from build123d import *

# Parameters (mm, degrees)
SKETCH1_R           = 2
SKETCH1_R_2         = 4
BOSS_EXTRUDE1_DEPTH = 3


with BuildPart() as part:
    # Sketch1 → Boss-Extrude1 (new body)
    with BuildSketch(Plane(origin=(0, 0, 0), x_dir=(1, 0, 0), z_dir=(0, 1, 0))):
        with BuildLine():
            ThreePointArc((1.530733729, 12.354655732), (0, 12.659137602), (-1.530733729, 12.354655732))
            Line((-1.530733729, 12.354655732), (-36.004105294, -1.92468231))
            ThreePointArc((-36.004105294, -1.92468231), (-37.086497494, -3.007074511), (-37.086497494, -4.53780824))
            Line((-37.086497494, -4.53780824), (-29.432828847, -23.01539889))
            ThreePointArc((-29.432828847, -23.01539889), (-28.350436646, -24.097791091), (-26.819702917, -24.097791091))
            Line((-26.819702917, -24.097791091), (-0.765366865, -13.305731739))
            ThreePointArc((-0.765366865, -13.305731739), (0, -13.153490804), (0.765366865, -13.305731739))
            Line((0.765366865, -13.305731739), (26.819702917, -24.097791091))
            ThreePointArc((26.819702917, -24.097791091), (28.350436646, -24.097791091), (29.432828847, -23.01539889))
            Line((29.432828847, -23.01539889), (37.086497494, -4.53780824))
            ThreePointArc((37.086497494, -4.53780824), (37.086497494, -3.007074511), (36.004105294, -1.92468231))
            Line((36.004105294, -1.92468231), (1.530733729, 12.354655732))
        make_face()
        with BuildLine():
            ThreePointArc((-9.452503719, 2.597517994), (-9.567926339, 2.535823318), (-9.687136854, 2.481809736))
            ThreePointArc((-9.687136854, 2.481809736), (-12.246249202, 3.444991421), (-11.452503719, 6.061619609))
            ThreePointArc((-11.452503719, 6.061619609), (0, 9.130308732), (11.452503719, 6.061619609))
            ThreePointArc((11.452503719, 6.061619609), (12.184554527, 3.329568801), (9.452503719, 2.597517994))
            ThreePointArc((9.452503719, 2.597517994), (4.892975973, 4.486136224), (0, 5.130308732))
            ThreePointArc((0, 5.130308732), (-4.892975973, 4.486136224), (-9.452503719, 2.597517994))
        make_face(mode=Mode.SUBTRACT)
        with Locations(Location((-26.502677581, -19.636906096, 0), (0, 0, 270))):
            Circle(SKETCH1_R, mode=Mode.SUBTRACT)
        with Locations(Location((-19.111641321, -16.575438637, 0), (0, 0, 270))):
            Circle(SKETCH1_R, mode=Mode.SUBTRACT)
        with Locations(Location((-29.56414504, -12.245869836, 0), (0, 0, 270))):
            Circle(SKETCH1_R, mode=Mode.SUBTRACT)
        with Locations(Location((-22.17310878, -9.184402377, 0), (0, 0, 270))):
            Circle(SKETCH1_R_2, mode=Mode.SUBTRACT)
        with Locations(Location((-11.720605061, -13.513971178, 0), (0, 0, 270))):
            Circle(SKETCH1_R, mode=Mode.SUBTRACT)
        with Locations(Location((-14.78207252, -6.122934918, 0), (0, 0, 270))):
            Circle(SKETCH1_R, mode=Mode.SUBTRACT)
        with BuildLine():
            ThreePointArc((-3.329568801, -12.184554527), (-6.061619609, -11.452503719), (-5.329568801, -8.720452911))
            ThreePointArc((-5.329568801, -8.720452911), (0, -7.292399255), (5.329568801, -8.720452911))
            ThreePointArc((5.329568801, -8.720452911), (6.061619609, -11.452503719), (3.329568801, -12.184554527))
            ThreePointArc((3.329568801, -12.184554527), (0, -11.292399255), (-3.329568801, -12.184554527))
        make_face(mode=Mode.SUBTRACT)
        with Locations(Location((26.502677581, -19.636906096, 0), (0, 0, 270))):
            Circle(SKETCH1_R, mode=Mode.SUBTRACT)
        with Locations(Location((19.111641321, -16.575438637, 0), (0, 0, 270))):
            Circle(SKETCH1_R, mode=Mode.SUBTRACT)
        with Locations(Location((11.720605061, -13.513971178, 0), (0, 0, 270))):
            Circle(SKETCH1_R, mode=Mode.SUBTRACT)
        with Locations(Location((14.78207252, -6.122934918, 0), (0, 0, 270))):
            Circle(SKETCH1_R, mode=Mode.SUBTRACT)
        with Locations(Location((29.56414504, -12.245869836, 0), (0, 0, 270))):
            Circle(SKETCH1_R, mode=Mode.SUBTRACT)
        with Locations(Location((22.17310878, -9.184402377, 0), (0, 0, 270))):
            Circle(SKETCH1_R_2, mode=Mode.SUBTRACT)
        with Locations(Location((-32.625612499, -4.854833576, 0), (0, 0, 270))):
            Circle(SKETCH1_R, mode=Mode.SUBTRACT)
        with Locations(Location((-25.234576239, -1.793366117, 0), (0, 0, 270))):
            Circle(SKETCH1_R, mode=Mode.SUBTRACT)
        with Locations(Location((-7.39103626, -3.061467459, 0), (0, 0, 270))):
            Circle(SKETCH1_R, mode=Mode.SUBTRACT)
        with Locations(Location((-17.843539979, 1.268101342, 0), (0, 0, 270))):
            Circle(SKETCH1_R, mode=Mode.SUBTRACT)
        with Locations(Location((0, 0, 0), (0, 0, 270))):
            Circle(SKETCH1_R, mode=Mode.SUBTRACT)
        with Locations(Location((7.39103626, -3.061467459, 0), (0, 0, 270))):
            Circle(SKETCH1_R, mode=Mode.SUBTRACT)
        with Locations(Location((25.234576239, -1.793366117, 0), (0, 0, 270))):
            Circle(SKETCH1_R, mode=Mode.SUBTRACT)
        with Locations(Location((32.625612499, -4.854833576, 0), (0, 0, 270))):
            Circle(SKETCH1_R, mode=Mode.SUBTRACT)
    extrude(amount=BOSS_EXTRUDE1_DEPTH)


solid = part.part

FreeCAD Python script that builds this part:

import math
import FreeCAD as App
import Part
import Sketcher

V = App.Vector
Q = App.Units.Quantity

doc = App.newDocument("Part")
body = doc.addObject("PartDesign::Body", "Body")

sketch1 = body.newObject("Sketcher::SketchObject", "Sketch")
sketch1.AttachmentSupport = (doc.getObject("XZ_Plane"), [""])
sketch1.MapMode = "FlatFace"
sketch1.addGeometry([
    Part.ArcOfCircle(Part.Circle(V(0, -8.659138, 0), V(0, 0, 1), 4), math.radians(-112.5), math.radians(-67.5)),
    Part.LineSegment(V(-1.530734, -12.354656, 0), V(-36.004105, 1.924682, 0)),
    Part.ArcOfCircle(Part.Circle(V(-35.238738, 3.772441, 0), V(0, 0, 1), 2), math.radians(157.5), math.radians(247.5)),
    Part.LineSegment(V(-37.086497, 4.537808, 0), V(-29.432829, 23.015399, 0)),
    Part.ArcOfCircle(Part.Circle(V(-27.58507, 22.250032, 0), V(0, 0, 1), 2), math.radians(67.5), math.radians(157.5)),
    Part.LineSegment(V(-26.819703, 24.097791, 0), V(-0.765367, 13.305732, 0)),
    Part.ArcOfCircle(Part.Circle(V(0, 15.153491, 0), V(0, 0, 1), 2), math.radians(-112.5), math.radians(-67.5)),
    Part.LineSegment(V(0.765367, 13.305732, 0), V(26.819703, 24.097791, 0)),
    Part.ArcOfCircle(Part.Circle(V(27.58507, 22.250032, 0), V(0, 0, 1), 2), math.radians(22.5), math.radians(112.5)),
    Part.LineSegment(V(29.432829, 23.015399, 0), V(37.086497, 4.537808, 0)),
    Part.ArcOfCircle(Part.Circle(V(35.238738, 3.772441, 0), V(0, 0, 1), 2), math.radians(-67.5), math.radians(22.5)),
    Part.LineSegment(V(36.004105, 1.924682, 0), V(1.530734, -12.354656, 0)),
    Part.Circle(V(-26.502678, 19.636906, 0), V(0, 0, 1), 2),
    Part.Circle(V(-19.111641, 16.575439, 0), V(0, 0, 1), 2),
    Part.Circle(V(-29.564145, 12.24587, 0), V(0, 0, 1), 2),
    Part.Circle(V(-22.173109, 9.184402, 0), V(0, 0, 1), 4),
    Part.Circle(V(-11.720605, 13.513971, 0), V(0, 0, 1), 2),
    Part.Circle(V(26.502678, 19.636906, 0), V(0, 0, 1), 2),
    Part.Circle(V(19.111641, 16.575439, 0), V(0, 0, 1), 2),
    Part.Circle(V(11.720605, 13.513971, 0), V(0, 0, 1), 2),
    Part.ArcOfCircle(Part.Circle(V(0, 17.951537, 0), V(0, 0, 1), 6.659138), math.radians(-120), math.radians(-60)),
    Part.ArcOfCircle(Part.Circle(V(-4.329569, 10.452504, 0), V(0, 0, 1), 2), math.radians(60), math.radians(240)),
    Part.ArcOfCircle(Part.Circle(V(0, 17.951537, 0), V(0, 0, 1), 10.659138), math.radians(-120), math.radians(-60)),
    Part.ArcOfCircle(Part.Circle(V(4.329569, 10.452504, 0), V(0, 0, 1), 2), math.radians(-60), math.radians(120)),
    Part.Circle(V(29.564145, 12.24587, 0), V(0, 0, 1), 2),
    Part.Circle(V(22.173109, 9.184402, 0), V(0, 0, 1), 4),
    Part.Circle(V(-32.625612, 4.854834, 0), V(0, 0, 1), 2),
    Part.Circle(V(-25.234576, 1.793366, 0), V(0, 0, 1), 2),
    Part.Circle(V(-17.84354, -1.268101, 0), V(0, 0, 1), 2),
    Part.Circle(V(-14.782073, 6.122935, 0), V(0, 0, 1), 2),
    Part.Circle(V(-7.391036, 3.061467, 0), V(0, 0, 1), 2),
    Part.Circle(V(7.391036, 3.061467, 0), V(0, 0, 1), 2),
    Part.Circle(V(14.782073, 6.122935, 0), V(0, 0, 1), 2),
    Part.Circle(V(0, 0, 0), V(0, 0, 1), 2),
    Part.Circle(V(32.625612, 4.854834, 0), V(0, 0, 1), 2),
    Part.Circle(V(25.234576, 1.793366, 0), V(0, 0, 1), 2),
    Part.ArcOfCircle(Part.Circle(V(0, 13.774699, 0), V(0, 0, 1), 18.905007), math.radians(-120), math.radians(-90)),
    Part.ArcOfCircle(Part.Circle(V(-10.452504, -4.329569, 0), V(0, 0, 1), 2), math.radians(60), math.radians(67.5)),
    Part.ArcOfCircle(Part.Circle(V(-10.452504, -4.329569, 0), V(0, 0, 1), 2), math.radians(67.5), math.radians(240)),
    Part.ArcOfCircle(Part.Circle(V(0, 13.774699, 0), V(0, 0, 1), 22.905007), math.radians(-120), math.radians(-60)),
    Part.ArcOfCircle(Part.Circle(V(10.452504, -4.329569, 0), V(0, 0, 1), 2), math.radians(-60), math.radians(120)),
    Part.ArcOfCircle(Part.Circle(V(0, 13.774699, 0), V(0, 0, 1), 18.905007), math.radians(-90), math.radians(-60)),
], False)
sketch1.addConstraint([
    Sketcher.Constraint("Tangent", 0, 1, 1, 1),
    Sketcher.Constraint("Tangent", 1, 2, 2, 2),
    Sketcher.Constraint("Tangent", 2, 1, 3, 1),
    Sketcher.Constraint("Tangent", 3, 2, 4, 2),
    Sketcher.Constraint("Tangent", 4, 1, 5, 1),
    Sketcher.Constraint("Tangent", 5, 2, 6, 1),
    Sketcher.Constraint("Tangent", 6, 2, 7, 1),
    Sketcher.Constraint("Tangent", 7, 2, 8, 2),
    Sketcher.Constraint("Tangent", 8, 1, 9, 1),
    Sketcher.Constraint("Tangent", 9, 2, 10, 2),
    Sketcher.Constraint("Tangent", 10, 1, 11, 1),
    Sketcher.Constraint("Tangent", 11, 2, 0, 2),
    Sketcher.Constraint("Tangent", 20, 1, 21, 1),
    Sketcher.Constraint("Tangent", 21, 2, 22, 1),
    Sketcher.Constraint("Tangent", 22, 2, 23, 1),
    Sketcher.Constraint("Tangent", 23, 2, 20, 2),
    Sketcher.Constraint("Tangent", 36, 1, 37, 1),
    Sketcher.Constraint("Tangent", 37, 2, 38, 1),
    Sketcher.Constraint("Tangent", 38, 2, 39, 1),
    Sketcher.Constraint("Tangent", 39, 2, 40, 1),
    Sketcher.Constraint("Tangent", 40, 2, 41, 2),
    Sketcher.Constraint("Tangent", 41, 1, 36, 2),
    Sketcher.Constraint("Coincident", 33, 3, -1, 1),
    Sketcher.Constraint("Coincident", 22, 3, 20, 3),
    Sketcher.Constraint("Coincident", 39, 3, 36, 3),
    Sketcher.Constraint("Equal", 2, 4),
    Sketcher.Constraint("Equal", 4, 6),
    Sketcher.Constraint("Equal", 6, 8),
    Sketcher.Constraint("Equal", 8, 10),
    Sketcher.Constraint("Equal", 10, 12),
    Sketcher.Constraint("Equal", 12, 13),
    Sketcher.Constraint("Equal", 13, 14),
    Sketcher.Constraint("Equal", 0, 15),
    Sketcher.Constraint("Equal", 14, 16),
    Sketcher.Constraint("Equal", 16, 17),
    Sketcher.Constraint("Equal", 17, 18),
    Sketcher.Constraint("Equal", 18, 19),
    Sketcher.Constraint("Equal", 19, 21),
    Sketcher.Constraint("Equal", 23, 24),
    Sketcher.Constraint("Equal", 15, 25),
    Sketcher.Constraint("Equal", 24, 26),
    Sketcher.Constraint("Equal", 26, 27),
    Sketcher.Constraint("Equal", 27, 28),
    Sketcher.Constraint("Equal", 28, 29),
    Sketcher.Constraint("Equal", 29, 30),
    Sketcher.Constraint("Equal", 30, 31),
    Sketcher.Constraint("Equal", 31, 32),
    Sketcher.Constraint("Equal", 32, 33),
    Sketcher.Constraint("Equal", 33, 34),
    Sketcher.Constraint("Equal", 34, 35),
    Sketcher.Constraint("Equal", 35, 37),
    Sketcher.Constraint("Equal", 37, 38),
    Sketcher.Constraint("Equal", 38, 40),
    Sketcher.Constraint("Symmetric", 4, 3, 8, 3, -2),
    Sketcher.Constraint("Symmetric", 2, 3, 10, 3, -2),
    Sketcher.Constraint("Symmetric", 12, 3, 17, 3, -2),
    Sketcher.Constraint("Symmetric", 13, 3, 18, 3, -2),
    Sketcher.Constraint("Symmetric", 16, 3, 19, 3, -2),
    Sketcher.Constraint("Symmetric", 21, 3, 23, 3, -2),
    Sketcher.Constraint("Symmetric", 14, 3, 24, 3, -2),
    Sketcher.Constraint("Symmetric", 15, 3, 25, 3, -2),
    Sketcher.Constraint("Symmetric", 30, 3, 31, 3, -2),
    Sketcher.Constraint("Symmetric", 29, 3, 32, 3, -2),
    Sketcher.Constraint("Symmetric", 26, 3, 34, 3, -2),
    Sketcher.Constraint("Symmetric", 27, 3, 35, 3, -2),
    Sketcher.Constraint("Symmetric", 37, 3, 40, 3, -2),
    Sketcher.Constraint("PointOnObject", 0, 3, -2),
    Sketcher.Constraint("PointOnObject", 6, 3, -2),
    Sketcher.Constraint("PointOnObject", 41, 1, -2),
    Sketcher.Constraint("Perpendicular", 1, 3),
    Sketcher.Constraint("Perpendicular", 3, 5),
    Sketcher.Constraint("Diameter", 12, 4.0),
    Sketcher.Constraint("Diameter", 15, 8.0),
    Sketcher.Constraint("Distance", 3, 20.0),
    Sketcher.Constraint("Angle", 1, Q("157.5 deg")),
    Sketcher.Constraint("DistanceX", 21, 3, 20, 1, 1.0),
    Sketcher.Constraint("DistanceX", 38, 3, 36, 1, 1.0),
    Sketcher.Constraint("Radius", 20, 6.659138),
    Sketcher.Constraint("Radius", 36, 18.905007),
    Sketcher.Constraint("DistanceY", 28, 3, -1, 1, 1.268101),
    Sketcher.Constraint("DistanceY", -1, 1, 36, 3, 13.774699),
    Sketcher.Constraint("DistanceY", -1, 1, 3, 2, 23.015399),
    Sketcher.Constraint("DistanceY", 14, 3, 16, 3, 1.268101),
    Sketcher.Constraint("DistanceY", 13, 3, 20, 3, 1.376098),
    Sketcher.Constraint("DistanceY", 34, 3, 32, 3, 1.268101),
    Sketcher.Constraint("DistanceX", 37, 2, 30, 3, 2.296101),
    Sketcher.Constraint("Distance", 1, 37.313708),
    Sketcher.Constraint("DistanceX", 13, 3, -1, 1, 19.111641),
    Sketcher.Constraint("DistanceY", -1, 1, 13, 3, 16.575439),
    Sketcher.Constraint("DistanceY", -1, 1, 14, 3, 12.24587),
    Sketcher.Constraint("DistanceX", 15, 3, -1, 1, 22.173109),
    Sketcher.Constraint("DistanceX", 28, 3, -1, 1, 17.84354),
    Sketcher.Constraint("DistanceY", 37, 2, -1, 1, 2.48181),
    Sketcher.Constraint("DistanceX", 2, 3, 12, 3, 8.736061),
    Sketcher.Constraint("DistanceY", 2, 3, 15, 3, 5.411961),
    Sketcher.Constraint("DistanceX", 14, 3, 16, 3, 17.84354),
    Sketcher.Constraint("DistanceX", 16, 3, 19, 3, 23.44121),
    Sketcher.Constraint("DistanceY", 26, 3, 15, 3, 4.329569),
    Sketcher.Constraint("DistanceX", 26, 3, 13, 3, 13.513971),
    Sketcher.Constraint("DistanceX", 14, 3, 27, 3, 4.329569),
    Sketcher.Constraint("DistanceY", 27, 3, 29, 3, 4.329569),
    Sketcher.Constraint("DistanceY", 28, 3, 30, 3, 4.329569),
    Sketcher.Constraint("DistanceX", 32, 3, 18, 3, 4.329569),
    Sketcher.Constraint("DistanceY", -1, 1, 12, 3, 19.636906),
])
pad1 = body.newObject("PartDesign::Pad", "Pad")
pad1.Profile = sketch1
pad1.Length = 3
pad1.Reversed = True

doc.recompute()
